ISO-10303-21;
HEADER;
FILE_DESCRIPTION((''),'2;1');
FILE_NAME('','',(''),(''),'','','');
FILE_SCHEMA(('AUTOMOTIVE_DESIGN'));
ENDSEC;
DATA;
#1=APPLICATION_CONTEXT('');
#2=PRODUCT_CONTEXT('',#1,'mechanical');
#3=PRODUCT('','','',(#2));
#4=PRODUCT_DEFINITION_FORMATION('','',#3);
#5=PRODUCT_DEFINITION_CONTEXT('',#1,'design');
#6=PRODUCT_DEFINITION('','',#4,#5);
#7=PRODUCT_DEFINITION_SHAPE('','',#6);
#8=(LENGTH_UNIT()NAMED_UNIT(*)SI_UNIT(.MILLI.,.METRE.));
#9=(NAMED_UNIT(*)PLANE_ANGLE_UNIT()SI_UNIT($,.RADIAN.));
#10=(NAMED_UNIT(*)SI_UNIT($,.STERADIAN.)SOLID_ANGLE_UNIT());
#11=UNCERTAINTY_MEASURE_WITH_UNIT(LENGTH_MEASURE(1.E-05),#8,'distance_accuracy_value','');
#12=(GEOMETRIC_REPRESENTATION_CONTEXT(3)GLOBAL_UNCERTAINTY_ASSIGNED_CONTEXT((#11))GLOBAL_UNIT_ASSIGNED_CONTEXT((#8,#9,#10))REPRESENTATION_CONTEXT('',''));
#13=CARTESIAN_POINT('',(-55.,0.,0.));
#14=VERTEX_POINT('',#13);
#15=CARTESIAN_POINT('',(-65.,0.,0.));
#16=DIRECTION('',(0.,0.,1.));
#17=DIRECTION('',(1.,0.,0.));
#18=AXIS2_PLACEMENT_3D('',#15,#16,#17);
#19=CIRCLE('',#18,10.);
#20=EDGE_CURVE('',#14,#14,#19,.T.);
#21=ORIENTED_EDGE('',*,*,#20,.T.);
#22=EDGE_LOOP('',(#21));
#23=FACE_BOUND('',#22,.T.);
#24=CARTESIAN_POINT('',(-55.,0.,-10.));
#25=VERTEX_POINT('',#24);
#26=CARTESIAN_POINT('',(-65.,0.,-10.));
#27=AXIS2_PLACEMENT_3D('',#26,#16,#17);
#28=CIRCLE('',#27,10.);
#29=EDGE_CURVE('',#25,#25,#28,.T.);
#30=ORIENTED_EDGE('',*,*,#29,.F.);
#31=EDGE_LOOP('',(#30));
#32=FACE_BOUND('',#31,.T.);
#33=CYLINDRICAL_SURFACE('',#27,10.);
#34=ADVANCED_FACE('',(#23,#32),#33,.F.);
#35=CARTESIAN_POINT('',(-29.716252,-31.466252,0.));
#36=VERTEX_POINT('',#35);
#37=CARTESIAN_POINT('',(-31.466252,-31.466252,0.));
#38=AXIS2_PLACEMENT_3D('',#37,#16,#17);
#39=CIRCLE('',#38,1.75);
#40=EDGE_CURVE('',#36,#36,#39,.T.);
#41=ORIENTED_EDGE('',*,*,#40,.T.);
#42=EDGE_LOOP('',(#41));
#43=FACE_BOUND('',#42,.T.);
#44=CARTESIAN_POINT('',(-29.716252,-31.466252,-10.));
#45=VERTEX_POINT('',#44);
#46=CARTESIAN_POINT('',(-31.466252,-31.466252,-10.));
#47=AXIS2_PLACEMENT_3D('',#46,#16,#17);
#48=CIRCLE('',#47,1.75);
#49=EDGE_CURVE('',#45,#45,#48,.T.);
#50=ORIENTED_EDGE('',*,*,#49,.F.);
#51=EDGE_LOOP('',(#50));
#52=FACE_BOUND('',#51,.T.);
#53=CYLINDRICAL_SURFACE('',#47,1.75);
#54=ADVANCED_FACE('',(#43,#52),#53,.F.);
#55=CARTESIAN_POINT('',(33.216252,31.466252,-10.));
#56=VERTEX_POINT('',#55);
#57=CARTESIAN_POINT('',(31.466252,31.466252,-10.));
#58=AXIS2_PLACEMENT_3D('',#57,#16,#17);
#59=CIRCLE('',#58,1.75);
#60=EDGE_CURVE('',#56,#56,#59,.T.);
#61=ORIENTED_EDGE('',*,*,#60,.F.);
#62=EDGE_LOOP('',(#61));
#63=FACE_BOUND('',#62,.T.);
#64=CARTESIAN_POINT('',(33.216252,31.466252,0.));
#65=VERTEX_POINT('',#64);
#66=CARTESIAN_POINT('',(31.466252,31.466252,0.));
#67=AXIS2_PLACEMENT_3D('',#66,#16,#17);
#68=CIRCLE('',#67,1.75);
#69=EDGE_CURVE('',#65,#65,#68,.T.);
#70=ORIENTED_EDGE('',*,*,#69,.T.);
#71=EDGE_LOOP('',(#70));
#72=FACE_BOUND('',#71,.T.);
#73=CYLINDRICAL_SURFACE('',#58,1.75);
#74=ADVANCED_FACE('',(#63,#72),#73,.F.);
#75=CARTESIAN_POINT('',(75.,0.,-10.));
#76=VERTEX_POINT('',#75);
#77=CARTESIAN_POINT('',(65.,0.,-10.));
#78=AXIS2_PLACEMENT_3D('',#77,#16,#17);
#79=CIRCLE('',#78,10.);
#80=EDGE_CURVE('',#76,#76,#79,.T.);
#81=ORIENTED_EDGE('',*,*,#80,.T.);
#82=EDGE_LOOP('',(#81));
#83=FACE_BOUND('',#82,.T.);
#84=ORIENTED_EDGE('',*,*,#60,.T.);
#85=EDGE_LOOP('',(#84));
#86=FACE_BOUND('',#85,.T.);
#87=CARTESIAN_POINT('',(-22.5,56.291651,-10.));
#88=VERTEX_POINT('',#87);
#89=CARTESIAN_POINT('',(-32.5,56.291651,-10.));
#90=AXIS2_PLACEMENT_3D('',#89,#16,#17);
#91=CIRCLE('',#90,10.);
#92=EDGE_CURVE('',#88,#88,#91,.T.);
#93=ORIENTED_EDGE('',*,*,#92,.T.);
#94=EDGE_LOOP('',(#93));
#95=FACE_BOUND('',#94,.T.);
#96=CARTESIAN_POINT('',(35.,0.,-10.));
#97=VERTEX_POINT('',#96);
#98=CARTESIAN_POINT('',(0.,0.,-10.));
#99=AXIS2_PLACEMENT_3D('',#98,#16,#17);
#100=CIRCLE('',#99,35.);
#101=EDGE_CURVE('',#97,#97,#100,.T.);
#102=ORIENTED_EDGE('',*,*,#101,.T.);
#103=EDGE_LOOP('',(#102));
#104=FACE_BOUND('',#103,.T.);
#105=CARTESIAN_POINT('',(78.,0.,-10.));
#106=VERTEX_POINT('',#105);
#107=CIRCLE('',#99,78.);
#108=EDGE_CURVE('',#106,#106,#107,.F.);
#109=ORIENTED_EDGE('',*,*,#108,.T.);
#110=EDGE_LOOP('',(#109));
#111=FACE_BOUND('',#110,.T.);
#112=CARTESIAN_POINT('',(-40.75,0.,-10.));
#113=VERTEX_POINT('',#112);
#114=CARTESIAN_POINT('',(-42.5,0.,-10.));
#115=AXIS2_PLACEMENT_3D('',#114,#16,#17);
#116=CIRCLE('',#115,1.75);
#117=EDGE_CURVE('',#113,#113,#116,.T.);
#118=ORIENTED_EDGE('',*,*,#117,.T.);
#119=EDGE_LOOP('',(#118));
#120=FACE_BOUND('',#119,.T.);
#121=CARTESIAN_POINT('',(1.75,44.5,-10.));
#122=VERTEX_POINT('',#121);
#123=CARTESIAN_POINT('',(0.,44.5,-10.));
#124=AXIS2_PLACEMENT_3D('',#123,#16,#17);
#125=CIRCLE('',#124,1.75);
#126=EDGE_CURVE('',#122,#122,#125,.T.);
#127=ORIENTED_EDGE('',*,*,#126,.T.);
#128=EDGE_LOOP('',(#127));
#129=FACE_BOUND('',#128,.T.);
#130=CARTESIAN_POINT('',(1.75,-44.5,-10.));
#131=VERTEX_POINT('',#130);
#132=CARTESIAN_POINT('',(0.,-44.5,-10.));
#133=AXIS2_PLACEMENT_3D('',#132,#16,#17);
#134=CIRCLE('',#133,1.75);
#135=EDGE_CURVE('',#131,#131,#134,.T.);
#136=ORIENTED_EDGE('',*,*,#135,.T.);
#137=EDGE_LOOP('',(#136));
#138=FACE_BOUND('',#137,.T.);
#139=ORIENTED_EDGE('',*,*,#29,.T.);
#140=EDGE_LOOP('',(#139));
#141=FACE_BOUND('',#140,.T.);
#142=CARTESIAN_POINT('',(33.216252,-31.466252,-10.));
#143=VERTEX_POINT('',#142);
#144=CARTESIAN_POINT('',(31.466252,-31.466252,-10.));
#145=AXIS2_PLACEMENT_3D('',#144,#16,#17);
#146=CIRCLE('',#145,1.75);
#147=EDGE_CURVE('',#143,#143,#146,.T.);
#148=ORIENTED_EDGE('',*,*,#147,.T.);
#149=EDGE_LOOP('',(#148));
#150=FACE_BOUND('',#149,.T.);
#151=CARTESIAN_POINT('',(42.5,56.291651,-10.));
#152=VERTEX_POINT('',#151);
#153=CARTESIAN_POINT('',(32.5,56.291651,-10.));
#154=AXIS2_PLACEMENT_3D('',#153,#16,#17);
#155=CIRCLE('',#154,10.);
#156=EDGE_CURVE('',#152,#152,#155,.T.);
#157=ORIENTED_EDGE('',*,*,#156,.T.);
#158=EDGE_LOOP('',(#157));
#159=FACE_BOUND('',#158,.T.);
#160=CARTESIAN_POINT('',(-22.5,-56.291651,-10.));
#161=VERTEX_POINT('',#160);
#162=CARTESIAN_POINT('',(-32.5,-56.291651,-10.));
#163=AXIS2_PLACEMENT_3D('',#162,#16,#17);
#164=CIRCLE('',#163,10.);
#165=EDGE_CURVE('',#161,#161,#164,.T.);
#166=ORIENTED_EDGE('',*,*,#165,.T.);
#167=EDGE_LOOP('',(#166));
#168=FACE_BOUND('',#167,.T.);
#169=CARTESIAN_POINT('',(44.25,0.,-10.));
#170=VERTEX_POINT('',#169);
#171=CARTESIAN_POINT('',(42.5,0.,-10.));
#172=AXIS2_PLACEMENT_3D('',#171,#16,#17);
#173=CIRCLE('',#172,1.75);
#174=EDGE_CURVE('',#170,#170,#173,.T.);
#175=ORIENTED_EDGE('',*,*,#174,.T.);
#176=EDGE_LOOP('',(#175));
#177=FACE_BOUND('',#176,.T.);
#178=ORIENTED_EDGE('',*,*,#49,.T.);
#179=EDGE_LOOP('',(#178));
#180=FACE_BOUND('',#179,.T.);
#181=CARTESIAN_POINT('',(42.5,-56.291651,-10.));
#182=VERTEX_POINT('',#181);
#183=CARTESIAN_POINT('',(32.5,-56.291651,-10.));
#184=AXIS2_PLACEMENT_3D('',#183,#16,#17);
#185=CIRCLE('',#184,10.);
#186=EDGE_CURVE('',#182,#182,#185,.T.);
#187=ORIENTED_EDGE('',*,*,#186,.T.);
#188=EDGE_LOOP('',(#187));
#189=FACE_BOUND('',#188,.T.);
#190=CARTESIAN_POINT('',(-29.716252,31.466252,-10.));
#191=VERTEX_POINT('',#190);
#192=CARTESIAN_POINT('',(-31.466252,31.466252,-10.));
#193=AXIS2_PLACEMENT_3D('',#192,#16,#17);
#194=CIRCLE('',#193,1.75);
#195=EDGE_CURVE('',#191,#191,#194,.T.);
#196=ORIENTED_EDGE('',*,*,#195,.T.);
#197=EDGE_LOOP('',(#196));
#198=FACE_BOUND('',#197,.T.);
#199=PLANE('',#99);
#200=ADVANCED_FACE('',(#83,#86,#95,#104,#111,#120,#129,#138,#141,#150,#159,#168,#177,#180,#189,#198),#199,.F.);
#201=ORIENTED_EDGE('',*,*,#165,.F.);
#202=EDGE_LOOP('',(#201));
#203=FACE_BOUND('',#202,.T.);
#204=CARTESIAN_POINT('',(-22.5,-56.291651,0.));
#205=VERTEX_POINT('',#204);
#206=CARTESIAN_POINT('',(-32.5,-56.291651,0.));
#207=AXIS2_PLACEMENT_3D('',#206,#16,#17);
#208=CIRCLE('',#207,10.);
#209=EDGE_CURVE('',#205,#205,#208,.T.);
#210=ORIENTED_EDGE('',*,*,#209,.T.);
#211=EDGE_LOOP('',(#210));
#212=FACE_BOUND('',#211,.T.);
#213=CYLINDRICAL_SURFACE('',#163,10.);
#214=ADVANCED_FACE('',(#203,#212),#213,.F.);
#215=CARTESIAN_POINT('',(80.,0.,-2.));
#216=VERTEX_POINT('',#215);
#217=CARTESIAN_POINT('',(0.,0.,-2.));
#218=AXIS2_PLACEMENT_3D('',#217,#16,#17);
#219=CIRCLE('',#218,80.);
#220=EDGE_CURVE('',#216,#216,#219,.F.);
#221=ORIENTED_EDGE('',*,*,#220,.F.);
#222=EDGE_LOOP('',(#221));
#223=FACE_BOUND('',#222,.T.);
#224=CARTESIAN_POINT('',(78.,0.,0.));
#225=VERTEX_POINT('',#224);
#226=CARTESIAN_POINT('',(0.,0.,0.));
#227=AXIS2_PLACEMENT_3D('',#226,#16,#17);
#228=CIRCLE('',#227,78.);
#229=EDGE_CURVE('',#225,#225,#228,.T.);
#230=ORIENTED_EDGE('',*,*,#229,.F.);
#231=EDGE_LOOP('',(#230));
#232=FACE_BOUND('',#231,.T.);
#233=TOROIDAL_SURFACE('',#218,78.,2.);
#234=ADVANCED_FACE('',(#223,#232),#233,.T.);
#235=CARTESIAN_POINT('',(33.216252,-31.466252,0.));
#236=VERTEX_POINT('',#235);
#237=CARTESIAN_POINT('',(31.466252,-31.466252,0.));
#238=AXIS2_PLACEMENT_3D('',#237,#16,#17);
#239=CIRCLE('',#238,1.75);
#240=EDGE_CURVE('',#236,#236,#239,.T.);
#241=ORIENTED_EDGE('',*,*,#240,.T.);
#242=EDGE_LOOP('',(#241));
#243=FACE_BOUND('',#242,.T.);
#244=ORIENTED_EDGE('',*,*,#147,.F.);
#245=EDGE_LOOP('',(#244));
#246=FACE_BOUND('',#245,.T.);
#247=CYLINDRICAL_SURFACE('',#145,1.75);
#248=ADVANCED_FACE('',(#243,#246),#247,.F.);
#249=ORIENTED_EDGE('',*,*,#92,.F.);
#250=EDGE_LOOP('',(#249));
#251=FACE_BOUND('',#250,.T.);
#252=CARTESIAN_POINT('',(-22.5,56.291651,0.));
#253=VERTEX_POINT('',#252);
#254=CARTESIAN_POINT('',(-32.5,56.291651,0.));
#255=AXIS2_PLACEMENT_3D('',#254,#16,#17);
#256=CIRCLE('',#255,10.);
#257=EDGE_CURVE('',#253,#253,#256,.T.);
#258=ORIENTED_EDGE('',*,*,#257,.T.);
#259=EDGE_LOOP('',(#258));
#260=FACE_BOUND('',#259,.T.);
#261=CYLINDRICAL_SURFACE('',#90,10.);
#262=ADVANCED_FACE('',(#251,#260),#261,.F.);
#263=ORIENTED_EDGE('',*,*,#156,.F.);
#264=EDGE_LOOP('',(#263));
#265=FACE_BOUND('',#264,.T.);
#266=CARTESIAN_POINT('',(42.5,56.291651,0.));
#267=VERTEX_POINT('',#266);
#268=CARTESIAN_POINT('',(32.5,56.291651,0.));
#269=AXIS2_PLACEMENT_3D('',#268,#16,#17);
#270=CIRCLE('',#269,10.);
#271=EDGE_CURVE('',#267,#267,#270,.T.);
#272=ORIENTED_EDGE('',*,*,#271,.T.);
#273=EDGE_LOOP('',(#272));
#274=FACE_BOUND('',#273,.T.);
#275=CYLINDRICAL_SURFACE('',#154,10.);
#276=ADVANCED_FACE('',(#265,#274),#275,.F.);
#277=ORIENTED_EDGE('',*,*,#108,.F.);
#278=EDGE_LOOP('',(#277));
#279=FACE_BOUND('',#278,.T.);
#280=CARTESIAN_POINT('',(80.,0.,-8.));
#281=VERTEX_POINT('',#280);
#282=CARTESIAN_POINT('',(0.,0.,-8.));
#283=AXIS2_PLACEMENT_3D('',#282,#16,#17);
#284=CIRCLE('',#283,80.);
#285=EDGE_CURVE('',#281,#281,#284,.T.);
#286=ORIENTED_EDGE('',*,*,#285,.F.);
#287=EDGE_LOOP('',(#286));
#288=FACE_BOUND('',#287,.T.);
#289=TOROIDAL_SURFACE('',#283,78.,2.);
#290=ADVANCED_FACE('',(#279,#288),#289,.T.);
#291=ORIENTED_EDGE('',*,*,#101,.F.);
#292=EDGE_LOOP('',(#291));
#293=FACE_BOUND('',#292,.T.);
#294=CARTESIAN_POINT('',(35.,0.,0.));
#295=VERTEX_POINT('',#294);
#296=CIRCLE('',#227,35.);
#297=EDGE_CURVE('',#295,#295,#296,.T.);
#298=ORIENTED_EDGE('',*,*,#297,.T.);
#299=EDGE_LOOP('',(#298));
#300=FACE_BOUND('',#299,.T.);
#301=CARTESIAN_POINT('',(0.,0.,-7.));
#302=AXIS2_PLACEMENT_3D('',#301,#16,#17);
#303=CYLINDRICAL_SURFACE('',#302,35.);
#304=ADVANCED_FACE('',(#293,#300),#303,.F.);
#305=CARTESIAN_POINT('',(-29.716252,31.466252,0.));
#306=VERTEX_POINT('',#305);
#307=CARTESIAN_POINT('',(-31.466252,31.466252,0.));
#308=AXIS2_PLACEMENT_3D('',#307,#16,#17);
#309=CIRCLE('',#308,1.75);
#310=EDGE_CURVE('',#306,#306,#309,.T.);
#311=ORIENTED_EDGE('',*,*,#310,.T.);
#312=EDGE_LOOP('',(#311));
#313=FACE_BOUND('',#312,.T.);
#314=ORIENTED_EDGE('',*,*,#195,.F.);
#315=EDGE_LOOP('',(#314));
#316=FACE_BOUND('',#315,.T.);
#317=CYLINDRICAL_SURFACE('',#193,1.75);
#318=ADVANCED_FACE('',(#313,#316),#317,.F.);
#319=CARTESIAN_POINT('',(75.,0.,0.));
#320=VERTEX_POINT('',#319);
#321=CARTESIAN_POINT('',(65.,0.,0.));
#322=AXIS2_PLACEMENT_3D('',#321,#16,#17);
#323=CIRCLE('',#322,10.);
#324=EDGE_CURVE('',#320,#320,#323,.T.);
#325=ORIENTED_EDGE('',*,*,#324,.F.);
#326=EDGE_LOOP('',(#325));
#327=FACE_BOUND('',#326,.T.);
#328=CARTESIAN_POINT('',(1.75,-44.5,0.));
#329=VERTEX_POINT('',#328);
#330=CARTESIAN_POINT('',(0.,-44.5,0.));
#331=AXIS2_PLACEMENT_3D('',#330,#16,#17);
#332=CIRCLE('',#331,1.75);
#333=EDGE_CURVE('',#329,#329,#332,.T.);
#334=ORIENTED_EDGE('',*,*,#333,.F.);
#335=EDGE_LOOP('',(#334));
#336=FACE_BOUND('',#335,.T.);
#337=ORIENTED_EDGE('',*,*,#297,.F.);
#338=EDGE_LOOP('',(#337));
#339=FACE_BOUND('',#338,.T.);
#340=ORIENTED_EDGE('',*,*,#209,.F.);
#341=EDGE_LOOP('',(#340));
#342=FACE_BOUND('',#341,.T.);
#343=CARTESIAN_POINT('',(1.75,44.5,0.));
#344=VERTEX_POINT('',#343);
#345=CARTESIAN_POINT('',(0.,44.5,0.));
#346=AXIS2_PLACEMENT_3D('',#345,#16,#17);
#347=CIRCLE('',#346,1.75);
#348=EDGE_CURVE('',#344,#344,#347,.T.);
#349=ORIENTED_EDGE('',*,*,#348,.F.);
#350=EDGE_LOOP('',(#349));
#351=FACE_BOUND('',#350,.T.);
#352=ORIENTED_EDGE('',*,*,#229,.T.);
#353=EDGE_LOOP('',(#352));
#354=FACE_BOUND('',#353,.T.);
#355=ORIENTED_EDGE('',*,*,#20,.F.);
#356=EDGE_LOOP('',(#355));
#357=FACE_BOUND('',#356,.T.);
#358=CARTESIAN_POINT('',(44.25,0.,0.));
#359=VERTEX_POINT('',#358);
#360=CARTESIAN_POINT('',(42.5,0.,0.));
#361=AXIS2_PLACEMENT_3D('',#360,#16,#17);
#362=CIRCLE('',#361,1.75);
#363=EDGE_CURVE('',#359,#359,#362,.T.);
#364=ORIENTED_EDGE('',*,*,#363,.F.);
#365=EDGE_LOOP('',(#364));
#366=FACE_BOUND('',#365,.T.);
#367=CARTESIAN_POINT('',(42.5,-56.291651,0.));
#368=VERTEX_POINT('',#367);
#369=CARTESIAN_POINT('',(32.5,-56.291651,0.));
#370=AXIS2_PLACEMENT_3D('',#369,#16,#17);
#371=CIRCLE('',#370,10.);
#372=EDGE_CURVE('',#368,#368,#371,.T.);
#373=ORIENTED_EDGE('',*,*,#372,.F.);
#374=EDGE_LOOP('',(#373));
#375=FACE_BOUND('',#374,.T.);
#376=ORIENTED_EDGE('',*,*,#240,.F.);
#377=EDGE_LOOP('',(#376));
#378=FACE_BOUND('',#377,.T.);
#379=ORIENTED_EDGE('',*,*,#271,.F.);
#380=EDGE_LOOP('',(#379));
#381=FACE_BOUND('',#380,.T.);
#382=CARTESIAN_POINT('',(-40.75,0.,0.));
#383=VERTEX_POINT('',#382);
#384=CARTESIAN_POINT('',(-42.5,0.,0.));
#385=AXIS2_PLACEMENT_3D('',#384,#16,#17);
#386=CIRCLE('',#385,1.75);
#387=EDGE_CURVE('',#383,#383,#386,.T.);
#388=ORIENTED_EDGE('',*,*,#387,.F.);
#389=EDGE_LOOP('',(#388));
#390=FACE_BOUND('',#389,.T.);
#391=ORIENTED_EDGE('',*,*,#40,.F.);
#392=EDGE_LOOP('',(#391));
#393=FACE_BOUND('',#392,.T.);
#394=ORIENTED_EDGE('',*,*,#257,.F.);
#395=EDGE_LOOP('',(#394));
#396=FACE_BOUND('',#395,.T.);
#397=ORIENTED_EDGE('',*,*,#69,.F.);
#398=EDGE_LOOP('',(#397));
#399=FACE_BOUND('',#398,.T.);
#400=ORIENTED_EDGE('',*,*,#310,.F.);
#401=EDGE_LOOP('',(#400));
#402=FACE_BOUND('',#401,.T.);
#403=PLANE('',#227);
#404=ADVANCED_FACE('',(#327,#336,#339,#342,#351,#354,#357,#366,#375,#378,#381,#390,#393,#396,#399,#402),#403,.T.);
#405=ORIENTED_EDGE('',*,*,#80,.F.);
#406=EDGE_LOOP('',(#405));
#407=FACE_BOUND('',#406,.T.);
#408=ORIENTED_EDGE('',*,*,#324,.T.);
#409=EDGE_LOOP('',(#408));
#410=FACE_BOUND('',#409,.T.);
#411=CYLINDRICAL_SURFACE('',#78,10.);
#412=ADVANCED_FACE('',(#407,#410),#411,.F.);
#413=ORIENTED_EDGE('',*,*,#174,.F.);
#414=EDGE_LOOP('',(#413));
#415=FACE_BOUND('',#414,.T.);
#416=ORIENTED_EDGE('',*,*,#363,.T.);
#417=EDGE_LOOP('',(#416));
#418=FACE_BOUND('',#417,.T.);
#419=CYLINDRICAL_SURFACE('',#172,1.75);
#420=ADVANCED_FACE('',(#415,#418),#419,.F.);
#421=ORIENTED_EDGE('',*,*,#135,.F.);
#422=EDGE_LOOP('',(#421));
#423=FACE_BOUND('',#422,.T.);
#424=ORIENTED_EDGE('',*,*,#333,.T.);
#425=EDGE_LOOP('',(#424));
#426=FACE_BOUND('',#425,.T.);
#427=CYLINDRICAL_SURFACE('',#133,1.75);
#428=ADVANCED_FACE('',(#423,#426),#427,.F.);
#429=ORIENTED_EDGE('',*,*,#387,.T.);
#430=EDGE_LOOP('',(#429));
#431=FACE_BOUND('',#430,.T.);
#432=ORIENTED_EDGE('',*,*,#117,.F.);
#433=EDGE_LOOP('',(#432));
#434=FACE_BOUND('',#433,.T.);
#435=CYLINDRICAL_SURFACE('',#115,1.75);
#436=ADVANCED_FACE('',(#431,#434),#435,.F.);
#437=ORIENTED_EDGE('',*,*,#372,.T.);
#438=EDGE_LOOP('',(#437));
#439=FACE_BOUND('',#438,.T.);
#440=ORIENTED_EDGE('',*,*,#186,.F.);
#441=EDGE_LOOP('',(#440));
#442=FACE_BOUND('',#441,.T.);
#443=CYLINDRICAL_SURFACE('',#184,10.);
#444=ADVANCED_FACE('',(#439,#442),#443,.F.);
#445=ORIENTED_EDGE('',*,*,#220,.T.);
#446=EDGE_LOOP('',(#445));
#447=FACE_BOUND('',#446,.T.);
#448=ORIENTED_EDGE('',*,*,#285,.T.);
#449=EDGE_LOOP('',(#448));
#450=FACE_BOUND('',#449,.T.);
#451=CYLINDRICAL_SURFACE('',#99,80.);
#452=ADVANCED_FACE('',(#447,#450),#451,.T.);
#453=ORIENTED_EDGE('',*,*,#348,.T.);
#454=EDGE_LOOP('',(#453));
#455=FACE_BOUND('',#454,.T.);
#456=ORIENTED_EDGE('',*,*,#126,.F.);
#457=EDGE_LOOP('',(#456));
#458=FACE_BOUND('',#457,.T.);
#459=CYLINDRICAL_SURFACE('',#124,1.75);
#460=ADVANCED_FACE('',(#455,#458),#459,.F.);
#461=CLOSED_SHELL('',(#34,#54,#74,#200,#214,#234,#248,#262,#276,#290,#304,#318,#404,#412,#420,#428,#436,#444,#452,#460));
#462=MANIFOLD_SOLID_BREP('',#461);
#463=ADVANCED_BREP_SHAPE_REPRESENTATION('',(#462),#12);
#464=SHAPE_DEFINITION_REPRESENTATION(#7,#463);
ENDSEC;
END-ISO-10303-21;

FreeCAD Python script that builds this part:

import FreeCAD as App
import Part
import Sketcher
from FreeCAD import Vector


def edges_at(feature, points):
    """Names of the edges that pass closest to the given points."""
    edges = feature.Shape.Edges
    near = lambda p: min(range(len(edges)), key=lambda i: edges[i].distToShape(Part.Vertex(*p))[0])
    return sorted({f"Edge{near(p) + 1}" for p in points})

doc = App.newDocument("Part")
body = doc.addObject("PartDesign::Body", "Body")

sketch1 = body.newObject("Sketcher::SketchObject", "Sketch")
sketch1.AttachmentSupport = (doc.getObject("XY_Plane"), [""])
sketch1.MapMode = "FlatFace"
sketch1.addGeometry(Part.Circle(Vector(0, 0, 0), Vector(0, 0, 1), 80), False)
sketch1.addConstraint([
    Sketcher.Constraint("Coincident", 0, 3, -1, 1),
    Sketcher.Constraint("Diameter", 0, 160.0),
])
pad1 = body.newObject("PartDesign::Pad", "Pad")
pad1.Profile = sketch1
pad1.Length = 10
pad1.Reversed = True

sketch2 = body.newObject("Sketcher::SketchObject", "Sketch001")
sketch2.AttachmentSupport = (doc.getObject("XY_Plane"), [""])
sketch2.MapMode = "FlatFace"
sketch2.addGeometry(Part.Circle(Vector(0, 0, 0), Vector(0, 0, 1), 35), False)
sketch2.addConstraint([
    Sketcher.Constraint("Coincident", 0, 3, -1, 1),
    Sketcher.Constraint("Diameter", 0, 70.0),
])
pocket1 = body.newObject("PartDesign::Pocket", "Pocket")
pocket1.Profile = sketch2
pocket1.Length = 7

sketch3 = body.newObject("Sketcher::SketchObject", "Sketch002")
sketch3.AttachmentSupport = (doc.getObject("XY_Plane"), [""])
sketch3.MapMode = "FlatFace"
sketch3.addGeometry([
    Part.Circle(Vector(-32.5, 56.291651, 0), Vector(0, 0, 1), 10),
    Part.Circle(Vector(-65, 0, 0), Vector(0, 0, 1), 10),
    Part.Circle(Vector(-32.5, -56.291651, 0), Vector(0, 0, 1), 10),
    Part.Circle(Vector(32.5, -56.291651, 0), Vector(0, 0, 1), 10),
    Part.Circle(Vector(65, 0, 0), Vector(0, 0, 1), 10),
    Part.Circle(Vector(32.5, 56.291651, 0), Vector(0, 0, 1), 10),
], False)
sketch3.addConstraint([
    Sketcher.Constraint("Equal", 0, 1),
    Sketcher.Constraint("Equal", 1, 2),
    Sketcher.Constraint("Equal", 2, 3),
    Sketcher.Constraint("Equal", 3, 4),
    Sketcher.Constraint("Equal", 4, 5),
    Sketcher.Constraint("Symmetric", 0, 3, 3, 3, -1, 1),
    Sketcher.Constraint("Symmetric", 1, 3, 4, 3, -1, 1),
    Sketcher.Constraint("Symmetric", 2, 3, 5, 3, -1, 1),
    Sketcher.Constraint("Symmetric", 2, 3, 3, 3, -2),
    Sketcher.Constraint("PointOnObject", 1, 3, -1),
    Sketcher.Constraint("Diameter", 0, 20.0),
    Sketcher.Constraint("DistanceX", 1, 3, -1, 1, 65.0),
    Sketcher.Constraint("DistanceX", 2, 3, 3, 3, 65.0),
    Sketcher.Constraint("DistanceY", -1, 1, 0, 3, 56.291651),
])
pocket2 = body.newObject("PartDesign::Pocket", "Pocket001")
pocket2.Profile = sketch3
pocket2.Length = 10

sketch4 = body.newObject("Sketcher::SketchObject", "Sketch003")
sketch4.AttachmentSupport = (doc.getObject("XY_Plane"), [""])
sketch4.MapMode = "FlatFace"
sketch4.addGeometry([
    Part.Circle(Vector(0, 44.5, 0), Vector(0, 0, 1), 1.75),
    Part.Circle(Vector(31.466252, 31.466252, 0), Vector(0, 0, 1), 1.75),
    Part.Circle(Vector(42.5, 0, 0), Vector(0, 0, 1), 1.75),
    Part.Circle(Vector(31.466252, -31.466252, 0), Vector(0, 0, 1), 1.75),
    Part.Circle(Vector(-31.466252, -31.466252, 0), Vector(0, 0, 1), 1.75),
    Part.Circle(Vector(-42.5, 0, 0), Vector(0, 0, 1), 1.75),
    Part.Circle(Vector(-31.466252, 31.466252, 0), Vector(0, 0, 1), 1.75),
    Part.Circle(Vector(0, -44.5, 0), Vector(0, 0, 1), 1.75),
], False)
sketch4.addConstraint([
    Sketcher.Constraint("Equal", 0, 1),
    Sketcher.Constraint("Equal", 1, 2),
    Sketcher.Constraint("Equal", 2, 3),
    Sketcher.Constraint("Equal", 3, 4),
    Sketcher.Constraint("Equal", 4, 5),
    Sketcher.Constraint("Equal", 5, 6),
    Sketcher.Constraint("Equal", 6, 7),
    Sketcher.Constraint("Symmetric", 1, 3, 4, 3, -1, 1),
    Sketcher.Constraint("Symmetric", 2, 3, 5, 3, -1, 1),
    Sketcher.Constraint("Symmetric", 3, 3, 6, 3, -1, 1),
    Sketcher.Constraint("Symmetric", 0, 3, 7, 3, -1, 1),
    Sketcher.Constraint("Symmetric", 3, 3, 4, 3, -2),
    Sketcher.Constraint("PointOnObject", 0, 3, -2),
    Sketcher.Constraint("PointOnObject", 2, 3, -1),
    Sketcher.Constraint("Diameter", 0, 3.5),
    Sketcher.Constraint("DistanceX", 5, 3, 2, 3, 85.0),
    Sketcher.Constraint("DistanceY", -1, 1, 0, 3, 44.5),
    Sketcher.Constraint("DistanceX", -1, 1, 1, 3, 31.466252),
    Sketcher.Constraint("DistanceY", -1, 1, 1, 3, 31.466252),
])
pocket3 = body.newObject("PartDesign::Pocket", "Pocket002")
pocket3.Profile = sketch4
pocket3.Length = 10

sketch5 = body.newObject("Sketcher::SketchObject", "Sketch004")
sketch5.AttachmentSupport = (doc.getObject("XY_Plane"), [""])
sketch5.MapMode = "FlatFace"
sketch5.addGeometry(Part.Circle(Vector(0, 0, 0), Vector(0, 0, 1), 35), False)
sketch5.addConstraint([
    Sketcher.Constraint("Coincident", 0, 3, -1, 1),
    Sketcher.Constraint("Diameter", 0, 70.0),
])
pocket4 = body.newObject("PartDesign::Pocket", "Pocket003")
pocket4.Profile = sketch5
pocket4.Length = 40
pocket4.Midplane = True
doc.recompute()

fillet = body.newObject("PartDesign::Fillet", "Fillet")
fillet.Base = (pocket4, edges_at(pocket4, [(-80, 0, 0), (-80, 0, -10)]))
fillet.Radius = 2

doc.recompute()
